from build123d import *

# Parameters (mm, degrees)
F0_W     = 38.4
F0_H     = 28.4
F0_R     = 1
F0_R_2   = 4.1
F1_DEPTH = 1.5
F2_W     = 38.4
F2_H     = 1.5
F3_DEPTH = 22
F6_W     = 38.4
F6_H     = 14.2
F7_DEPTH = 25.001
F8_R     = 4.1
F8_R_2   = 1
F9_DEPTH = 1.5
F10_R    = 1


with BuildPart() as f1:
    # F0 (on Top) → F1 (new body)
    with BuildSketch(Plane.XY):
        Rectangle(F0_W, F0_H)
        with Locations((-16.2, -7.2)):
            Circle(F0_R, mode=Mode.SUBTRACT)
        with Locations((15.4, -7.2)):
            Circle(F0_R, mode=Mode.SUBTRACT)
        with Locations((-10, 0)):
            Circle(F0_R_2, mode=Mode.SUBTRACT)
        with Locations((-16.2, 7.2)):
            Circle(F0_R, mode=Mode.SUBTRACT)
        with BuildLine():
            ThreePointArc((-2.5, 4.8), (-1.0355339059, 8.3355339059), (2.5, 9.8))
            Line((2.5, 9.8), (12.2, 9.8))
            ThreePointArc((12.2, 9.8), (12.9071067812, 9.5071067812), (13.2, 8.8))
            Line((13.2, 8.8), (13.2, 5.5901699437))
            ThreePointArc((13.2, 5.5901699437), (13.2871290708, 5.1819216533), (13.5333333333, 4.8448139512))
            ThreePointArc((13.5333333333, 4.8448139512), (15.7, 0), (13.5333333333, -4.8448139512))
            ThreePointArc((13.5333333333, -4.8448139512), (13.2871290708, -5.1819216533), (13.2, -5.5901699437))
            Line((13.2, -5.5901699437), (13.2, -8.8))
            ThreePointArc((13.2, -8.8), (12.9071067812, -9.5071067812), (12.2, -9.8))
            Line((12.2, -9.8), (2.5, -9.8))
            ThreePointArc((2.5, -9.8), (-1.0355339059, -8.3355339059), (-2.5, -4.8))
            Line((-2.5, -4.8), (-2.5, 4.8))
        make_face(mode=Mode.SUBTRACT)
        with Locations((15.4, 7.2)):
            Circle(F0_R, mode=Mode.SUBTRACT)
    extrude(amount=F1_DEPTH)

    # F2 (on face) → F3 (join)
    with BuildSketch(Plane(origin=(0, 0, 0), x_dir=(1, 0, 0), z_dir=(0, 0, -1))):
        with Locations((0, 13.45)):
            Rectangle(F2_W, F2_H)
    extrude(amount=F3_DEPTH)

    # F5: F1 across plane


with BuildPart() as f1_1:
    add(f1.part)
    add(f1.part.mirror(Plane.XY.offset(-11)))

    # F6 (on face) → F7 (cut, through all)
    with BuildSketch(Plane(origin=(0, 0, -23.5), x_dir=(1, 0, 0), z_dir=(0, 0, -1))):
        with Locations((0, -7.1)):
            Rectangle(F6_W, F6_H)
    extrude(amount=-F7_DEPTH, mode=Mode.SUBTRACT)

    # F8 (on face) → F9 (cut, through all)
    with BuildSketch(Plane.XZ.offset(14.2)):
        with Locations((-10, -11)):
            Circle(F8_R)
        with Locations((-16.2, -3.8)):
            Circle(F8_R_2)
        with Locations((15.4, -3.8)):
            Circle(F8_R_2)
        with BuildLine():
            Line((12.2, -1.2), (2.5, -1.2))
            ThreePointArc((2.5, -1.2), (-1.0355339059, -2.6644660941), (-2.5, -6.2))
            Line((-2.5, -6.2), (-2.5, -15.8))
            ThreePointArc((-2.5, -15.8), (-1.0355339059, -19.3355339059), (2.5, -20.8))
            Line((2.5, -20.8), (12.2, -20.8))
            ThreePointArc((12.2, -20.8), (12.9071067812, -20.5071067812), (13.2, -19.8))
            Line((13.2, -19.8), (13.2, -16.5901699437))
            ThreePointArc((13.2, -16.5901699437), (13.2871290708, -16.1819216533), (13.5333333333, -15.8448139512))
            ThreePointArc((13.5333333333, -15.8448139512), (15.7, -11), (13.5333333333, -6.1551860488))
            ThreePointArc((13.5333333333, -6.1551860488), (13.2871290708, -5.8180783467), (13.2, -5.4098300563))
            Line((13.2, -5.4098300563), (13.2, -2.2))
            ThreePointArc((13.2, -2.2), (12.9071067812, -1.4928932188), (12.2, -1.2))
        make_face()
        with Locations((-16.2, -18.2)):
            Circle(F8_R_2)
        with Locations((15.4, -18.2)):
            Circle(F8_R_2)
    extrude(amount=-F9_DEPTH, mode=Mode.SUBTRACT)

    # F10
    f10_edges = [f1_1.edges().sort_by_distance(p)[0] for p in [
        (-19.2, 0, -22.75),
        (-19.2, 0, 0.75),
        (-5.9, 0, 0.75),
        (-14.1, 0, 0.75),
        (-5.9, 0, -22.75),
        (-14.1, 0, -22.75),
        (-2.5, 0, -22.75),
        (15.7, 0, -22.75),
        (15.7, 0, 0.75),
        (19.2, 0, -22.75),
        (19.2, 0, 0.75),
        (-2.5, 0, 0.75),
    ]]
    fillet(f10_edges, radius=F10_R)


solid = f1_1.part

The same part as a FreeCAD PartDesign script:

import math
import FreeCAD as App
import Part
import Sketcher
from FreeCAD import Vector


def edges_at(feature, points):
    """Names of the edges that pass closest to the given points."""
    edges = feature.Shape.Edges
    near = lambda p: min(range(len(edges)), key=lambda i: edges[i].distToShape(Part.Vertex(*p))[0])
    return sorted({f"Edge{near(p) + 1}" for p in points})

doc = App.newDocument("Part")
params = doc.addObject("Spreadsheet::Sheet", "Params")
for row, (alias, value) in enumerate([
    ("sketch1_diameter", "2 mm"),
    ("sketch1_radius", "5 mm"),
    ("sketch1_diameter2", "8.2 mm"),
    ("sketch1_radius2", "6.5 mm"),
    ("sketch1_width", "38.4 mm"),
    ("pad1_length", "1.5 mm"),
    ("sketch2_width", "38.4 mm"),
    ("sketch2_height", "1.5 mm"),
    ("pad2_length", "22 mm"),
    ("sketch3_width", "38.4 mm"),
    ("sketch3_height", "14.2 mm"),
    ("sketch4_diameter", "2 mm"),
    ("sketch4_radius", "5 mm"),
    ("sketch4_diameter2", "8.2 mm"),
    ("sketch4_radius2", "6.5 mm"),
    ("sketch4_width", "9.7 mm"),
    ("fillet_radius", "1 mm"),
], start=1):
    params.set(f"A{row}", alias)
    params.set(f"B{row}", "=" + value)
    params.setAlias(f"B{row}", alias)

body = doc.addObject("PartDesign::Body", "Body")

# Sketch on XY plane
sketch1 = body.newObject("Sketcher::SketchObject", "Sketch")
sketch1.AttachmentSupport = (doc.getObject("XY_Plane"), [""])
sketch1.MapMode = "FlatFace"
sketch1.addGeometry([
    Part.LineSegment(Vector(-19.2, 14.2, 0), Vector(-19.2, -14.2, 0)),  # 0
    Part.LineSegment(Vector(-19.2, -14.2, 0), Vector(19.2, -14.2, 0)),  # 1
    Part.LineSegment(Vector(19.2, -14.2, 0), Vector(19.2, 14.2, 0)),  # 2
    Part.LineSegment(Vector(19.2, 14.2, 0), Vector(-19.2, 14.2, 0)),  # 3
    Part.Circle(Vector(-16.2, -7.2, 0), Vector(0, 0, 1), 1),  # 4
    Part.Circle(Vector(15.4, -7.2, 0), Vector(0, 0, 1), 1),  # 5
    Part.Circle(Vector(-10, 0, 0), Vector(0, 0, 1), 4.1),  # 6
    Part.Circle(Vector(-16.2, 7.2, 0), Vector(0, 0, 1), 1),  # 7
    Part.LineSegment(Vector(-2.5, -4.8, 0), Vector(-2.5, 4.8, 0)),  # 8
    Part.ArcOfCircle(Part.Circle(Vector(2.5, 4.8, 0), Vector(0, 0, 1), 5), math.radians(90), math.radians(180)),  # 9
    Part.LineSegment(Vector(2.5, 9.8, 0), Vector(12.2, 9.8, 0)),  # 10
    Part.ArcOfCircle(Part.Circle(Vector(12.2, 8.8, 0), Vector(0, 0, 1), 1), math.radians(0), math.radians(90)),  # 11
    Part.LineSegment(Vector(13.2, 8.8, 0), Vector(13.2, 5.6, 0)),  # 12
    Part.ArcOfCircle(Part.Circle(Vector(14.2, 5.6, 0), Vector(0, 0, 1), 1), math.radians(180), math.radians(228)),  # 13
    Part.ArcOfCircle(Part.Circle(Vector(9.2, 0, 0), Vector(0, 0, 1), 6.5), math.radians(-48), math.radians(48)),  # 14
    Part.ArcOfCircle(Part.Circle(Vector(14.2, -5.6, 0), Vector(0, 0, 1), 1), math.radians(132), math.radians(180)),  # 15
    Part.LineSegment(Vector(13.2, -5.6, 0), Vector(13.2, -8.8, 0)),  # 16
    Part.ArcOfCircle(Part.Circle(Vector(12.2, -8.8, 0), Vector(0, 0, 1), 1), math.radians(-90), math.radians(0)),  # 17
    Part.LineSegment(Vector(12.2, -9.8, 0), Vector(2.5, -9.8, 0)),  # 18
    Part.ArcOfCircle(Part.Circle(Vector(2.5, -4.8, 0), Vector(0, 0, 1), 5), math.radians(180), math.radians(270)),  # 19
    Part.Circle(Vector(15.4, 7.2, 0), Vector(0, 0, 1), 1),  # 20
], False)
sketch1.addConstraint([
    Sketcher.Constraint("Coincident", 0, 2, 1, 1),
    Sketcher.Constraint("Coincident", 1, 2, 2, 1),
    Sketcher.Constraint("Coincident", 2, 2, 3, 1),
    Sketcher.Constraint("Coincident", 3, 2, 0, 1),
    Sketcher.Constraint("Tangent", 8, 2, 9, 2),
    Sketcher.Constraint("Tangent", 9, 1, 10, 1),
    Sketcher.Constraint("Tangent", 10, 2, 11, 2),
    Sketcher.Constraint("Tangent", 11, 1, 12, 1),
    Sketcher.Constraint("Tangent", 12, 2, 13, 1),
    Sketcher.Constraint("Tangent", 13, 2, 14, 2),
    Sketcher.Constraint("Tangent", 14, 1, 15, 1),
    Sketcher.Constraint("Tangent", 15, 2, 16, 1),
    Sketcher.Constraint("Tangent", 16, 2, 17, 2),
    Sketcher.Constraint("Tangent", 17, 1, 18, 1),
    Sketcher.Constraint("Tangent", 18, 2, 19, 2),
    Sketcher.Constraint("Tangent", 19, 1, 8, 1),
    Sketcher.Constraint("Vertical", 0),
    Sketcher.Constraint("Horizontal", 1),
    Sketcher.Constraint("Vertical", 2),
    Sketcher.Constraint("Horizontal", 3),
    Sketcher.Constraint("Vertical", 8),
    Sketcher.Constraint("Horizontal", 10),
    Sketcher.Constraint("Vertical", 12),
    Sketcher.Constraint("Vertical", 16),
    Sketcher.Constraint("Horizontal", 18),
    Sketcher.Constraint("Equal", 4, 5),
    Sketcher.Constraint("Equal", 5, 7),
    Sketcher.Constraint("Equal", 7, 11),
    Sketcher.Constraint("Equal", 11, 13),
    Sketcher.Constraint("Equal", 13, 15),
    Sketcher.Constraint("Equal", 15, 17),
    Sketcher.Constraint("Equal", 9, 19),
    Sketcher.Constraint("Equal", 17, 20),
    Sketcher.Constraint("Symmetric", 0, 2, 2, 2, -1, 1),
    Sketcher.Constraint("Symmetric", 4, 3, 7, 3, -1),
    Sketcher.Constraint("Symmetric", 13, 3, 15, 3, -1),
    Sketcher.Constraint("Symmetric", 5, 3, 20, 3, -1),
    Sketcher.Constraint("PointOnObject", 6, 3, -1),
    Sketcher.Constraint("Horizontal", 4, 3, 5, 3),
    Sketcher.Constraint("Equal", 12, 16),
    Sketcher.Constraint("Diameter", 4, 2.0),
    Sketcher.Constraint("Radius", 9, 5.0),
    Sketcher.Constraint("Diameter", 6, 8.2),
    Sketcher.Constraint("Radius", 14, 6.5),
    Sketcher.Constraint("DistanceX", 1, 1, 1, 2, 38.4),
    Sketcher.Constraint("DistanceX", 10, 1, 10, 2, 9.7),
    Sketcher.Constraint("DistanceY", 0, 2, 0, 1, 28.4),
    Sketcher.Constraint("DistanceY", 8, 1, 8, 2, 9.6),
    Sketcher.Constraint("DistanceX", 6, 3, -1, 1, 10.0),
    Sketcher.Constraint("DistanceY", 5, 3, 9, 3, 12.0),
    Sketcher.Constraint("DistanceX", 14, 3, 13, 3, 5.0),
    Sketcher.Constraint("DistanceX", 0, 2, 4, 3, 3.0),
    Sketcher.Constraint("DistanceX", 17, 3, 1, 2, 7.0),
    Sketcher.Constraint("DistanceX", -1, 1, 5, 3, 15.4),
])
sketch1.setExpression("Constraints[40]", "Params.sketch1_diameter")
sketch1.setExpression("Constraints[41]", "Params.sketch1_radius")
sketch1.setExpression("Constraints[42]", "Params.sketch1_diameter2")
sketch1.setExpression("Constraints[43]", "Params.sketch1_radius2")
sketch1.setExpression("Constraints[44]", "Params.sketch1_width")
pad1 = body.newObject("PartDesign::Pad", "Pad")
pad1.Profile = sketch1
pad1.setExpression("Length", "Params.pad1_length")

# Sketch on XY plane
sketch2 = body.newObject("Sketcher::SketchObject", "Sketch001")
sketch2.AttachmentSupport = (doc.getObject("XY_Plane"), [""])
sketch2.MapMode = "FlatFace"
sketch2.addGeometry([
    Part.LineSegment(Vector(-19.2, -14.2, 0), Vector(-19.2, -12.7, 0)),
    Part.LineSegment(Vector(-19.2, -12.7, 0), Vector(19.2, -12.7, 0)),
    Part.LineSegment(Vector(19.2, -12.7, 0), Vector(19.2, -14.2, 0)),
    Part.LineSegment(Vector(19.2, -14.2, 0), Vector(-19.2, -14.2, 0)),
], False)
sketch2.addConstraint([
    Sketcher.Constraint("Coincident", 0, 2, 1, 1),
    Sketcher.Constraint("Coincident", 1, 2, 2, 1),
    Sketcher.Constraint("Coincident", 2, 2, 3, 1),
    Sketcher.Constraint("Coincident", 3, 2, 0, 1),
    Sketcher.Constraint("Vertical", 0),
    Sketcher.Constraint("Horizontal", 1),
    Sketcher.Constraint("Vertical", 2),
    Sketcher.Constraint("Horizontal", 3),
    Sketcher.Constraint("DistanceX", 1, 1, 1, 2, 38.4),
    Sketcher.Constraint("DistanceY", 0, 1, 0, 2, 1.5),
    Sketcher.Constraint("DistanceX", 0, 2, -1, 1, 19.2),
    Sketcher.Constraint("DistanceY", 0, 2, -1, 1, 12.7),
])
sketch2.setExpression("Constraints[8]", "Params.sketch2_width")
sketch2.setExpression("Constraints[9]", "Params.sketch2_height")
pad2 = body.newObject("PartDesign::Pad", "Pad001")
pad2.Profile = sketch2
pad2.setExpression("Length", "Params.pad2_length")
pad2.Reversed = True
body2 = doc.addObject("PartDesign::Body", "Body001")
doc.recompute()

body2.BaseFeature = body
doc.recompute()

mirroring = doc.addObject("Part::Mirroring", "Mirroring")
mirroring.Source = body
mirroring.Base = Vector(0, 0, -11)
mirroring.Normal = Vector(0, 0, 1)
body3 = doc.addObject("PartDesign::Body", "Body002")
body3.BaseFeature = mirroring
boolean = body2.newObject("PartDesign::Boolean", "Boolean")
boolean.Type = "Fuse"
boolean.addObjects([body3])
doc.recompute()

# Sketch on XY plane
sketch3 = body2.newObject("Sketcher::SketchObject", "Sketch002")
sketch3.AttachmentSupport = (doc.getObject("XY_Plane001"), [""])
sketch3.MapMode = "FlatFace"
sketch3.AttachmentOffset = App.Placement(Vector(0, 0, -23.5), App.Rotation())
sketch3.addGeometry([
    Part.LineSegment(Vector(-19, 0, 0), Vector(-19, 14, 0)),
    Part.LineSegment(Vector(-19, 14, 0), Vector(19, 14, 0)),
    Part.LineSegment(Vector(19, 14, 0), Vector(19, 0, 0)),
    Part.LineSegment(Vector(19, 0, 0), Vector(-19, 0, 0)),
], False)
sketch3.addConstraint([
    Sketcher.Constraint("Coincident", 0, 2, 1, 1),
    Sketcher.Constraint("Coincident", 1, 2, 2, 1),
    Sketcher.Constraint("Coincident", 2, 2, 3, 1),
    Sketcher.Constraint("Coincident", 3, 2, 0, 1),
    Sketcher.Constraint("Vertical", 0),
    Sketcher.Constraint("Horizontal", 1),
    Sketcher.Constraint("Vertical", 2),
    Sketcher.Constraint("Horizontal", 3),
    Sketcher.Constraint("Symmetric", 2, 2, 3, 2, -1, 1),
    Sketcher.Constraint("DistanceX", 1, 1, 1, 2, 38.4),
    Sketcher.Constraint("DistanceY", 0, 1, 0, 2, 14.2),
])
sketch3.setExpression("Constraints[9]", "Params.sketch3_width")
sketch3.setExpression("Constraints[10]", "Params.sketch3_height")
pocket1 = body2.newObject("PartDesign::Pocket", "Pocket")
pocket1.Profile = sketch3
pocket1.Type = "ThroughAll"
pocket1.Reversed = True

# Sketch on XZ plane
sketch4 = body2.newObject("Sketcher::SketchObject", "Sketch003")
sketch4.AttachmentSupport = (doc.getObject("XZ_Plane001"), [""])
sketch4.MapMode = "FlatFace"
sketch4.AttachmentOffset = App.Placement(Vector(0, 0, 14.2), App.Rotation())
sketch4.addGeometry([
    Part.Circle(Vector(-10, -11, 0), Vector(0, 0, 1), 4.1),  # 0
    Part.Circle(Vector(-16.2, -3.8, 0), Vector(0, 0, 1), 1),  # 1
    Part.Circle(Vector(15.4, -3.8, 0), Vector(0, 0, 1), 1),  # 2
    Part.LineSegment(Vector(12.2, -1.2, 0), Vector(2.5, -1.2, 0)),  # 3
    Part.ArcOfCircle(Part.Circle(Vector(2.5, -6.2, 0), Vector(0, 0, 1), 5), math.radians(90), math.radians(180)),  # 4
    Part.LineSegment(Vector(-2.5, -6.2, 0), Vector(-2.5, -15.8, 0)),  # 5
    Part.ArcOfCircle(Part.Circle(Vector(2.5, -15.8, 0), Vector(0, 0, 1), 5), math.radians(180), math.radians(270)),  # 6
    Part.LineSegment(Vector(2.5, -20.8, 0), Vector(12.2, -20.8, 0)),  # 7
    Part.ArcOfCircle(Part.Circle(Vector(12.2, -19.8, 0), Vector(0, 0, 1), 1), math.radians(-90), math.radians(0)),  # 8
    Part.LineSegment(Vector(13.2, -19.8, 0), Vector(13.2, -16.6, 0)),  # 9
    Part.ArcOfCircle(Part.Circle(Vector(14.2, -16.6, 0), Vector(0, 0, 1), 1), math.radians(132), math.radians(180)),  # 10
    Part.ArcOfCircle(Part.Circle(Vector(9.2, -11, 0), Vector(0, 0, 1), 6.5), math.radians(-48), math.radians(48)),  # 11
    Part.ArcOfCircle(Part.Circle(Vector(14.2, -5.4, 0), Vector(0, 0, 1), 1), math.radians(180), math.radians(228)),  # 12
    Part.LineSegment(Vector(13.2, -5.4, 0), Vector(13.2, -2.2, 0)),  # 13
    Part.ArcOfCircle(Part.Circle(Vector(12.2, -2.2, 0), Vector(0, 0, 1), 1), math.radians(0), math.radians(90)),  # 14
    Part.Circle(Vector(-16.2, -18.2, 0), Vector(0, 0, 1), 1),  # 15
    Part.Circle(Vector(15.4, -18.2, 0), Vector(0, 0, 1), 1),  # 16
], False)
sketch4.addConstraint([
    Sketcher.Constraint("Tangent", 3, 2, 4, 1),
    Sketcher.Constraint("Tangent", 4, 2, 5, 1),
    Sketcher.Constraint("Tangent", 5, 2, 6, 1),
    Sketcher.Constraint("Tangent", 6, 2, 7, 1),
    Sketcher.Constraint("Tangent", 7, 2, 8, 1),
    Sketcher.Constraint("Tangent", 8, 2, 9, 1),
    Sketcher.Constraint("Tangent", 9, 2, 10, 2),
    Sketcher.Constraint("Tangent", 10, 1, 11, 1),
    Sketcher.Constraint("Tangent", 11, 2, 12, 2),
    Sketcher.Constraint("Tangent", 12, 1, 13, 1),
    Sketcher.Constraint("Tangent", 13, 2, 14, 1),
    Sketcher.Constraint("Tangent", 14, 2, 3, 1),
    Sketcher.Constraint("Horizontal", 3),
    Sketcher.Constraint("Vertical", 5),
    Sketcher.Constraint("Horizontal", 7),
    Sketcher.Constraint("Vertical", 9),
    Sketcher.Constraint("Vertical", 13),
    Sketcher.Constraint("Equal", 1, 2),
    Sketcher.Constraint("Equal", 4, 6),
    Sketcher.Constraint("Equal", 2, 8),
    Sketcher.Constraint("Equal", 8, 10),
    Sketcher.Constraint("Equal", 10, 12),
    Sketcher.Constraint("Equal", 12, 14),
    Sketcher.Constraint("Equal", 14, 15),
    Sketcher.Constraint("Equal", 15, 16),
    Sketcher.Constraint("Horizontal", 1, 3, 2, 3),
    Sketcher.Constraint("Horizontal", 0, 3, 11, 3),
    Sketcher.Constraint("Horizontal", 15, 3, 16, 3),
    Sketcher.Constraint("Vertical", 10, 3, 12, 3),
    Sketcher.Constraint("Vertical", 1, 3, 15, 3),
    Sketcher.Constraint("Vertical", 2, 3, 16, 3),
    Sketcher.Constraint("Equal", 9, 13),
    Sketcher.Constraint("Diameter", 1, 2.0),
    Sketcher.Constraint("Radius", 4, 5.0),
    Sketcher.Constraint("Diameter", 0, 8.2),
    Sketcher.Constraint("Radius", 11, 6.5),
    Sketcher.Constraint("DistanceX", 3, 2, 3, 1, 9.7),
    Sketcher.Constraint("DistanceY", 5, 2, 5, 1, 9.6),
    Sketcher.Constraint("DistanceX", 0, 3, -1, 1, 10.0),
    Sketcher.Constraint("DistanceY", 0, 3, -1, 1, 11.0),
    Sketcher.Constraint("DistanceY", 6, 3, 2, 3, 12.0),
    Sketcher.Constraint("DistanceX", 11, 3, 10, 3, 5.0),
    Sketcher.Constraint("DistanceY", 15, 3, 4, 3, 12.0),
    Sketcher.Constraint("DistanceX", 1, 3, -1, 1, 16.2),
    Sketcher.Constraint("DistanceX", -1, 1, 2, 3, 15.4),
    Sketcher.Constraint("DistanceX", -1, 1, 4, 3, 2.5),
])
sketch4.setExpression("Constraints[32]", "Params.sketch4_diameter")
sketch4.setExpression("Constraints[33]", "Params.sketch4_radius")
sketch4.setExpression("Constraints[34]", "Params.sketch4_diameter2")
sketch4.setExpression("Constraints[35]", "Params.sketch4_radius2")
sketch4.setExpression("Constraints[36]", "Params.sketch4_width")
pocket2 = body2.newObject("PartDesign::Pocket", "Pocket001")
pocket2.Profile = sketch4
pocket2.Type = "ThroughAll"
doc.recompute()

fillet = body2.newObject("PartDesign::Fillet", "Fillet")
fillet.Base = (pocket2, edges_at(pocket2, [
    (-19.2, 0, -22.75),
    (-19.2, 0, 0.75),
    (-5.9, 0, 0.75),
    (-14.1, 0, 0.75),
    (-5.9, 0, -22.75),
    (-14.1, 0, -22.75),
    (-2.5, 0, -22.75),
    (15.7, 0, -22.75),
    (15.7, 0, 0.75),
    (19.2, 0, -22.75),
    (19.2, 0, 0.75),
    (-2.5, 0, 0.75),
]))
fillet.setExpression("Radius", "Params.fillet_radius")
mirroring.Visibility = False

doc.recompute()
